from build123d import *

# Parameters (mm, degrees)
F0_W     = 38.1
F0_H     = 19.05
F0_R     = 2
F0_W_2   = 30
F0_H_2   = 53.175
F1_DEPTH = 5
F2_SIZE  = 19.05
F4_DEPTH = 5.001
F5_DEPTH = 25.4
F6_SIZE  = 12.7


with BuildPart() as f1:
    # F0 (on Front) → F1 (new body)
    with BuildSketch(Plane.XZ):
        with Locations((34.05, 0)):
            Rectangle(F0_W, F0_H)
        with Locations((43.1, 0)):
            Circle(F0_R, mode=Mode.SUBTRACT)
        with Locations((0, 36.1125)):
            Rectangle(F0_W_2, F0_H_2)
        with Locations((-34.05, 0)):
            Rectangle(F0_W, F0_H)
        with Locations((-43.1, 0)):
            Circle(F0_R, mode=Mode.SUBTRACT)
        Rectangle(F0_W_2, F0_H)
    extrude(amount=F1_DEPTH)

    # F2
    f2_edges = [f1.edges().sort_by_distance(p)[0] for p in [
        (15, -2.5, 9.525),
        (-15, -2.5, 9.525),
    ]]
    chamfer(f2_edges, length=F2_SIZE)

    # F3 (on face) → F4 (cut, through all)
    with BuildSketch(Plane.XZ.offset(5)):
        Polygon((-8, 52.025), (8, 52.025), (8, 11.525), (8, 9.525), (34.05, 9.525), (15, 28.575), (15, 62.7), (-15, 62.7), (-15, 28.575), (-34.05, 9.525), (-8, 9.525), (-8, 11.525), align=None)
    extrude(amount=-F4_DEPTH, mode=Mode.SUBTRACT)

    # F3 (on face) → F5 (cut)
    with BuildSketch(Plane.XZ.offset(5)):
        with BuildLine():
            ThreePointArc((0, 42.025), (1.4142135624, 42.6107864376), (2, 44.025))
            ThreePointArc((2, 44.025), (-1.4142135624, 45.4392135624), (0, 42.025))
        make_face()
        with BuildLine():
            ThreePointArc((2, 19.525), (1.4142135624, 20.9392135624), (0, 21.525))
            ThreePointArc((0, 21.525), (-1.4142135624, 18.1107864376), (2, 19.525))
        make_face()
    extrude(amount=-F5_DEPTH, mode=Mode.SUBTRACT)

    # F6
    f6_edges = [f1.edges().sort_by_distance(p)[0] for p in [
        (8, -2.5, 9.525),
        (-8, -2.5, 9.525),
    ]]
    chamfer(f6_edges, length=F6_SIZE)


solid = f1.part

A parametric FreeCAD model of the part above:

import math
import FreeCAD as App
import Part
import Sketcher


def edges_at(feature, points):
    """Names of the edges that pass closest to the given points."""
    edges = feature.Shape.Edges
    near = lambda p: min(range(len(edges)), key=lambda i: edges[i].distToShape(Part.Vertex(*p))[0])
    return sorted({f"Edge{near(p) + 1}" for p in points})

doc = App.newDocument("Part")
body = doc.addObject("PartDesign::Body", "Body")

# Sketch on XZ plane
sketch1 = body.newObject("Sketcher::SketchObject", "Sketch")
sketch1.AttachmentSupport = (doc.getObject("XZ_Plane"), [""])
sketch1.MapMode = "FlatFace"
sketch1.addGeometry(Part.LineSegment(App.Vector(53.1, -9.5, 0), App.Vector(53.1, 9.5, 0)), False)
sketch1.addGeometry(Part.LineSegment(App.Vector(53.1, 9.5, 0), App.Vector(15, 9.5, 0)), False)
sketch1.addGeometry(Part.LineSegment(App.Vector(15, 9.5, 0), App.Vector(15, 62.7, 0)), False)
sketch1.addGeometry(Part.LineSegment(App.Vector(15, 62.7, 0), App.Vector(-15, 62.7, 0)), False)
sketch1.addGeometry(Part.LineSegment(App.Vector(-15, 62.7, 0), App.Vector(-15, 9.5, 0)), False)
sketch1.addGeometry(Part.LineSegment(App.Vector(-15, 9.5, 0), App.Vector(-53.1, 9.5, 0)), False)
sketch1.addGeometry(Part.LineSegment(App.Vector(-53.1, 9.5, 0), App.Vector(-53.1, -9.5, 0)), False)
sketch1.addGeometry(Part.LineSegment(App.Vector(-53.1, -9.5, 0), App.Vector(53.1, -9.5, 0)), False)
sketch1.addGeometry(Part.Circle(App.Vector(-43.1, 0, 0), App.Vector(0, 0, 1), 2), False)
sketch1.addGeometry(Part.Circle(App.Vector(43.1, 0, 0), App.Vector(0, 0, 1), 2), False)
sketch1.addConstraint(Sketcher.Constraint("Coincident", 0, 2, 1, 1))
sketch1.addConstraint(Sketcher.Constraint("Coincident", 1, 2, 2, 1))
sketch1.addConstraint(Sketcher.Constraint("Coincident", 2, 2, 3, 1))
sketch1.addConstraint(Sketcher.Constraint("Coincident", 3, 2, 4, 1))
sketch1.addConstraint(Sketcher.Constraint("Coincident", 4, 2, 5, 1))
sketch1.addConstraint(Sketcher.Constraint("Coincident", 5, 2, 6, 1))
sketch1.addConstraint(Sketcher.Constraint("Coincident", 6, 2, 7, 1))
sketch1.addConstraint(Sketcher.Constraint("Coincident", 7, 2, 0, 1))
sketch1.addConstraint(Sketcher.Constraint("Vertical", 0))
sketch1.addConstraint(Sketcher.Constraint("Horizontal", 1))
sketch1.addConstraint(Sketcher.Constraint("Vertical", 2))
sketch1.addConstraint(Sketcher.Constraint("Horizontal", 3))
sketch1.addConstraint(Sketcher.Constraint("Vertical", 4))
sketch1.addConstraint(Sketcher.Constraint("Horizontal", 5))
sketch1.addConstraint(Sketcher.Constraint("Vertical", 6))
sketch1.addConstraint(Sketcher.Constraint("Horizontal", 7))
sketch1.addConstraint(Sketcher.Constraint("Equal", 8, 9))
sketch1.addConstraint(Sketcher.Constraint("Symmetric", 8, 3, 9, 3, -1, 1))
sketch1.addConstraint(Sketcher.Constraint("Symmetric", 0, 2, 6, 2, -1, 1))
sketch1.addConstraint(Sketcher.Constraint("Symmetric", 1, 2, 4, 2, -2))
sketch1.addConstraint(Sketcher.Constraint("PointOnObject", 8, 3, -1))
sketch1.addConstraint(Sketcher.Constraint("Diameter", 8, 4.0))
sketch1.addConstraint(Sketcher.Constraint("DistanceX", 3, 2, 3, 1, 30.0))
sketch1.addConstraint(Sketcher.Constraint("DistanceX", 1, 2, 1, 1, 38.1))
sketch1.addConstraint(Sketcher.Constraint("DistanceX", 9, 3, 0, 2, 10.0))
sketch1.addConstraint(Sketcher.Constraint("DistanceY", 0, 1, 0, 2, 19.05))
sketch1.addConstraint(Sketcher.Constraint("DistanceY", -1, 1, 2, 2, 62.7))
pad1 = body.newObject("PartDesign::Pad", "Pad")
pad1.Profile = sketch1
pad1.Length = 5
doc.recompute()

chamfer = body.newObject("PartDesign::Chamfer", "Chamfer")
chamfer.Base = (pad1, edges_at(pad1, [(15, -2.5, 9.525), (-15, -2.5, 9.525)]))
chamfer.Size = 19.05

# Sketch on XZ plane
sketch2 = body.newObject("Sketcher::SketchObject", "Sketch001")
sketch2.AttachmentSupport = (doc.getObject("XZ_Plane"), [""])
sketch2.MapMode = "FlatFace"
sketch2.AttachmentOffset = App.Placement(App.Vector(0, 0, 5), App.Rotation())
sketch2.addGeometry(Part.LineSegment(App.Vector(-8, 52, 0), App.Vector(8, 52, 0)), False)
sketch2.addGeometry(Part.LineSegment(App.Vector(8, 52, 0), App.Vector(8, 10, 0)), False)
sketch2.addGeometry(Part.LineSegment(App.Vector(8, 10, 0), App.Vector(34, 10, 0)), False)
sketch2.addGeometry(Part.LineSegment(App.Vector(34, 10, 0), App.Vector(15, 29, 0)), False)
sketch2.addGeometry(Part.LineSegment(App.Vector(15, 29, 0), App.Vector(15, 63, 0)), False)
sketch2.addGeometry(Part.LineSegment(App.Vector(15, 63, 0), App.Vector(-15, 63, 0)), False)
sketch2.addGeometry(Part.LineSegment(App.Vector(-15, 63, 0), App.Vector(-15, 29, 0)), False)
sketch2.addGeometry(Part.LineSegment(App.Vector(-15, 29, 0), App.Vector(-34, 10, 0)), False)
sketch2.addGeometry(Part.LineSegment(App.Vector(-34, 10, 0), App.Vector(-8, 10, 0)), False)
sketch2.addGeometry(Part.LineSegment(App.Vector(-8, 10, 0), App.Vector(-8, 52, 0)), False)
sketch2.addConstraint(Sketcher.Constraint("Coincident", 0, 2, 1, 1))
sketch2.addConstraint(Sketcher.Constraint("Coincident", 1, 2, 2, 1))
sketch2.addConstraint(Sketcher.Constraint("Coincident", 2, 2, 3, 1))
sketch2.addConstraint(Sketcher.Constraint("Coincident", 3, 2, 4, 1))
sketch2.addConstraint(Sketcher.Constraint("Coincident", 4, 2, 5, 1))
sketch2.addConstraint(Sketcher.Constraint("Coincident", 5, 2, 6, 1))
sketch2.addConstraint(Sketcher.Constraint("Coincident", 6, 2, 7, 1))
sketch2.addConstraint(Sketcher.Constraint("Coincident", 7, 2, 8, 1))
sketch2.addConstraint(Sketcher.Constraint("Coincident", 8, 2, 9, 1))
sketch2.addConstraint(Sketcher.Constraint("Coincident", 9, 2, 0, 1))
sketch2.addConstraint(Sketcher.Constraint("Horizontal", 0))
sketch2.addConstraint(Sketcher.Constraint("Vertical", 1))
sketch2.addConstraint(Sketcher.Constraint("Horizontal", 2))
sketch2.addConstraint(Sketcher.Constraint("Vertical", 4))
sketch2.addConstraint(Sketcher.Constraint("Horizontal", 5))
sketch2.addConstraint(Sketcher.Constraint("Vertical", 6))
sketch2.addConstraint(Sketcher.Constraint("Horizontal", 8))
sketch2.addConstraint(Sketcher.Constraint("Vertical", 9))
sketch2.addConstraint(Sketcher.Constraint("Symmetric", 3, 2, 6, 2, -2))
sketch2.addConstraint(Sketcher.Constraint("Symmetric", 2, 2, 7, 2, -2))
sketch2.addConstraint(Sketcher.Constraint("Perpendicular", 3, 7))
sketch2.addConstraint(Sketcher.Constraint("Equal", 2, 8))
sketch2.addConstraint(Sketcher.Constraint("DistanceX", 0, 1, 0, 2, 16.0))
sketch2.addConstraint(Sketcher.Constraint("DistanceX", 5, 2, 5, 1, 30.0))
sketch2.addConstraint(Sketcher.Constraint("DistanceY", 1, 2, 1, 1, 42.5))
sketch2.addConstraint(Sketcher.Constraint("DistanceX", 2, 1, 2, 2, 26.05))
sketch2.addConstraint(Sketcher.Constraint("DistanceY", -1, 1, 4, 2, 62.7))
sketch2.addConstraint(Sketcher.Constraint("DistanceY", 4, 1, 4, 2, 34.125))
pocket1 = body.newObject("PartDesign::Pocket", "Pocket")
pocket1.Profile = sketch2
pocket1.Type = "ThroughAll"

# Sketch on XZ plane
sketch3 = body.newObject("Sketcher::SketchObject", "Sketch002")
sketch3.AttachmentSupport = (doc.getObject("XZ_Plane"), [""])
sketch3.MapMode = "FlatFace"
sketch3.AttachmentOffset = App.Placement(App.Vector(0, 0, 5), App.Rotation())
sketch3.addGeometry(Part.ArcOfCircle(Part.Circle(App.Vector(0, 44, 0), App.Vector(0, 0, 1), 2), math.radians(-90), math.radians(0)), False)
sketch3.addGeometry(Part.ArcOfCircle(Part.Circle(App.Vector(0, 44, 0), App.Vector(0, 0, 1), 2), math.radians(0), math.radians(270)), False)
sketch3.addGeometry(Part.ArcOfCircle(Part.Circle(App.Vector(0, 19.5, 0), App.Vector(0, 0, 1), 2), math.radians(0), math.radians(90)), False)
sketch3.addGeometry(Part.ArcOfCircle(Part.Circle(App.Vector(0, 19.5, 0), App.Vector(0, 0, 1), 2), math.radians(90), math.radians(360)), False)
sketch3.addConstraint(Sketcher.Constraint("Tangent", 0, 1, 1, 2))
sketch3.addConstraint(Sketcher.Constraint("Coincident", 1, 1, 0, 2))
sketch3.addConstraint(Sketcher.Constraint("Tangent", 2, 1, 3, 2))
sketch3.addConstraint(Sketcher.Constraint("Coincident", 3, 1, 2, 2))
sketch3.addConstraint(Sketcher.Constraint("Equal", 1, 2))
sketch3.addConstraint(Sketcher.Constraint("PointOnObject", 0, 3, -2))
sketch3.addConstraint(Sketcher.Constraint("PointOnObject", 2, 3, -2))
sketch3.addConstraint(Sketcher.Constraint("PointOnObject", 0, 1, -2))
sketch3.addConstraint(Sketcher.Constraint("PointOnObject", 3, 1, -2))
sketch3.addConstraint(Sketcher.Constraint("Horizontal", 0, 3, 1, 1))
sketch3.addConstraint(Sketcher.Constraint("Horizontal", 3, 3, 2, 1))
sketch3.addConstraint(Sketcher.Constraint("Radius", 0, 2.0))
sketch3.addConstraint(Sketcher.Constraint("DistanceY", 2, 3, 0, 3, 24.5))
sketch3.addConstraint(Sketcher.Constraint("DistanceY", -1, 1, 0, 3, 44.025))
pocket2 = body.newObject("PartDesign::Pocket", "Pocket001")
pocket2.Profile = sketch3
pocket2.Length = 25.4
doc.recompute()

chamfer2 = body.newObject("PartDesign::Chamfer", "Chamfer001")
chamfer2.Base = (pocket2, edges_at(pocket2, [(8, -2.5, 9.525), (-8, -2.5, 9.525)]))
chamfer2.Size = 12.7

doc.recompute()
